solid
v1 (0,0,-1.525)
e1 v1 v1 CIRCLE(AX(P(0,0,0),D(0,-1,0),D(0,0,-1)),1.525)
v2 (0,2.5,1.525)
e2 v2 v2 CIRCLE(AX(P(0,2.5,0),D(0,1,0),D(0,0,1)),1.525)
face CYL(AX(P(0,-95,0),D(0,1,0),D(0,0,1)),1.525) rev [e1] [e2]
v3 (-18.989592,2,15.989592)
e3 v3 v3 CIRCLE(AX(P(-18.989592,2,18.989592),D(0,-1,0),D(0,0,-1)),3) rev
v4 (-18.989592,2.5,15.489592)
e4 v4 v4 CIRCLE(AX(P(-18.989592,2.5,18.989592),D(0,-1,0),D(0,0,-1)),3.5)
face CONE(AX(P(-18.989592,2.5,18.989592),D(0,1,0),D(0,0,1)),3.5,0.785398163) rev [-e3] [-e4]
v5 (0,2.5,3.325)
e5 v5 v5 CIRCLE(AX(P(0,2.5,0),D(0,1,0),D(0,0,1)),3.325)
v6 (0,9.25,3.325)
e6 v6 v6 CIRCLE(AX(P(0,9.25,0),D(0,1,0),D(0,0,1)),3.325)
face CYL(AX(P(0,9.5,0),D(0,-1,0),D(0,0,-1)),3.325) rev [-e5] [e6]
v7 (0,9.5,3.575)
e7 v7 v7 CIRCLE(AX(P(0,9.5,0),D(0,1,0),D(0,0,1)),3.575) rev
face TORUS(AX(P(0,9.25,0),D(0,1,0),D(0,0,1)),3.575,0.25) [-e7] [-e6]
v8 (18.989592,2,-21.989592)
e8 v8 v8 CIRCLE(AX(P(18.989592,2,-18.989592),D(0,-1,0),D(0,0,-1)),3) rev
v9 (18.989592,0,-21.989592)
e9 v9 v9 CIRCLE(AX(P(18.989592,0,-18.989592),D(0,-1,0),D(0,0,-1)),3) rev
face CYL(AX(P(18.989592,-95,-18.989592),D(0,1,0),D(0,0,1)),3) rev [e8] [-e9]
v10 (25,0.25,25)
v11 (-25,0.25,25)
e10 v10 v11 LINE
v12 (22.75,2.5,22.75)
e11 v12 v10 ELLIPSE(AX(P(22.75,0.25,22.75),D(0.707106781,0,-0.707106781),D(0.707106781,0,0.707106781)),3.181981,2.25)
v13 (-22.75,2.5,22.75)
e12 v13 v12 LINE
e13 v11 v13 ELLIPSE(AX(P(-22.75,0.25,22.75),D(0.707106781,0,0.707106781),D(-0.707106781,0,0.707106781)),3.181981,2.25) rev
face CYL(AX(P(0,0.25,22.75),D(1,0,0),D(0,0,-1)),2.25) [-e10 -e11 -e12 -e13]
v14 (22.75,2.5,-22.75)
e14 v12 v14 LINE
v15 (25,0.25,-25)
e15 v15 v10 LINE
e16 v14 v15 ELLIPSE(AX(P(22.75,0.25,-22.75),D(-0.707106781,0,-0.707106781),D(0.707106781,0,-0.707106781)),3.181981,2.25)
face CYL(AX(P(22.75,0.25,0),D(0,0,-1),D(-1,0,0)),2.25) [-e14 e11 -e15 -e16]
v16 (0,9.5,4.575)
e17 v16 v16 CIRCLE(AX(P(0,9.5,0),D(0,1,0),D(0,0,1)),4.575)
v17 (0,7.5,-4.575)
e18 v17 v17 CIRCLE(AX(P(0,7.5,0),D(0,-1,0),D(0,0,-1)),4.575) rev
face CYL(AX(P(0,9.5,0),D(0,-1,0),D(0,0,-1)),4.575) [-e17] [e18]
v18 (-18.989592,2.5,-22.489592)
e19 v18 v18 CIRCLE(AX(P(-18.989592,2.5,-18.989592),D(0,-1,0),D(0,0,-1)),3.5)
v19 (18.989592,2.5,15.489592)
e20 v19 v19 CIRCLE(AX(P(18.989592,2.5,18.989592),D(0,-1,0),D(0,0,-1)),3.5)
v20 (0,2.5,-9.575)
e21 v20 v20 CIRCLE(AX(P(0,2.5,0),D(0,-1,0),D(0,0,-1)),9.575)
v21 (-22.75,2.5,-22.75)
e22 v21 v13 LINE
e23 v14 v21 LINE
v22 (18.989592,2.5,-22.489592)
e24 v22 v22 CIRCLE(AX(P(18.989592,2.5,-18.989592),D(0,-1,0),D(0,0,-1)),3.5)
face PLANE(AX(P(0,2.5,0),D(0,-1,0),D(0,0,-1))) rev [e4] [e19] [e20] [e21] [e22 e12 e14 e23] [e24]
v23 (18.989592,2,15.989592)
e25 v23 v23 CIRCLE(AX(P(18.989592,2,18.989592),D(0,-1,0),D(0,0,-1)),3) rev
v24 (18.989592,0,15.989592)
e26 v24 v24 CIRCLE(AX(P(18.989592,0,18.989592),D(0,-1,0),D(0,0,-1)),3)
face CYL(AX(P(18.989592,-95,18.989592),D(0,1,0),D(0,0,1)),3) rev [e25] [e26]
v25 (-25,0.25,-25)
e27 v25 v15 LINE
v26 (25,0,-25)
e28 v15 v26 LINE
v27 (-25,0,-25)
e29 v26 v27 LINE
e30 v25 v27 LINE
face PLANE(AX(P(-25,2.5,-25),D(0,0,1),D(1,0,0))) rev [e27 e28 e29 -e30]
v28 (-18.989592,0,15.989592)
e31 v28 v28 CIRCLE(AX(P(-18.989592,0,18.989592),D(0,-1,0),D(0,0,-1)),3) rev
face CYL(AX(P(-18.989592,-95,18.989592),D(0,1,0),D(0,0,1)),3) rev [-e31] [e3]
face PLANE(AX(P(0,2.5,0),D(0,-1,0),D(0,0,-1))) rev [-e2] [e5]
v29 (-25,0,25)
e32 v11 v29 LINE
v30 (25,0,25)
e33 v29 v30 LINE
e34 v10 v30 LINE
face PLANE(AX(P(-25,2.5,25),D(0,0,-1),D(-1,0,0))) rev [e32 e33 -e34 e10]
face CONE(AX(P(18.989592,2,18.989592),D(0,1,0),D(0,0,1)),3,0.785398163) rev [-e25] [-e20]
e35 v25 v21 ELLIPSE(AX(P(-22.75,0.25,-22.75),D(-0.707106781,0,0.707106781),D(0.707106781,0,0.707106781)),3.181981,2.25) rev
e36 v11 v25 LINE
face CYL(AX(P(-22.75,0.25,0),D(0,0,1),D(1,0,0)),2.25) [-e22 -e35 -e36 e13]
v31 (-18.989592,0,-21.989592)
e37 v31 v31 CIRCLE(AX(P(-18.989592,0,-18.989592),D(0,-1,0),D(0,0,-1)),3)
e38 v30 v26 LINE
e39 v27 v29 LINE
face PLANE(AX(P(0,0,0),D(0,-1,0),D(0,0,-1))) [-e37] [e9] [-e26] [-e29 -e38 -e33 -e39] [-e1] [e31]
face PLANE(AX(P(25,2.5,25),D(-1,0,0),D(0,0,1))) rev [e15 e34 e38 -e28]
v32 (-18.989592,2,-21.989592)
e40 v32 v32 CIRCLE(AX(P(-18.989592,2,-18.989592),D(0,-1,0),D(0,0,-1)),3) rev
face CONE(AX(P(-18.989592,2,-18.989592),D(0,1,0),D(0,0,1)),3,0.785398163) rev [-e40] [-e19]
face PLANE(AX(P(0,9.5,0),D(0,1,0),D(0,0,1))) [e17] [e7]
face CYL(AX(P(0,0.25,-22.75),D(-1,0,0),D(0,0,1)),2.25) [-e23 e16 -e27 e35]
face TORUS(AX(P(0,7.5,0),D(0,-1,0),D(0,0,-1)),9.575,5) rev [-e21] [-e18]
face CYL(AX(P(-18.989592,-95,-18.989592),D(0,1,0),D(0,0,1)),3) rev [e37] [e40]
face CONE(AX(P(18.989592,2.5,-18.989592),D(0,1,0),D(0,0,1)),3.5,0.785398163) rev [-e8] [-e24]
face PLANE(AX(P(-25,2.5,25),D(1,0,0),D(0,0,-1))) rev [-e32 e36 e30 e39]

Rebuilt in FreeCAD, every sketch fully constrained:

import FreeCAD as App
import Part
import Sketcher


def edges_at(feature, points):
    """Names of the edges that pass closest to the given points."""
    edges = feature.Shape.Edges
    near = lambda p: min(range(len(edges)), key=lambda i: edges[i].distToShape(Part.Vertex(*p))[0])
    return sorted({f"Edge{near(p) + 1}" for p in points})

doc = App.newDocument("Part")
params = doc.addObject("Spreadsheet::Sheet", "Params")
for row, (alias, value) in enumerate([
    ("sketch1_width", "50 mm"),
    ("pad1_length", "2.5 mm"),
    ("sketch2_diameter", "3.05 mm"),
    ("pocket1_length", "97.5 mm"),
    ("sketch3_diameter", "6 mm"),
    ("pocket2_length", "97.5 mm"),
    ("sketch4_diameter", "9.15 mm"),
    ("sketch4_diameter2", "6.65 mm"),
    ("pad2_length", "7 mm"),
    ("fillet_radius", "5 mm"),
    ("fillet2_radius", "2.25 mm"),
    ("chamfer_size", "0.5 mm"),
    ("fillet3_radius", "0.25 mm"),
], start=1):
    params.set(f"A{row}", alias)
    params.set(f"B{row}", "=" + value)
    params.setAlias(f"B{row}", alias)

body = doc.addObject("PartDesign::Body", "Body")

# Sketch on XZ plane
sketch1 = body.newObject("Sketcher::SketchObject", "Sketch")
sketch1.AttachmentSupport = (doc.getObject("XZ_Plane"), [""])
sketch1.MapMode = "FlatFace"
sketch1.addGeometry([
    Part.LineSegment(App.Vector(-25, -25, 0), App.Vector(-25, 25, 0)),
    Part.LineSegment(App.Vector(-25, 25, 0), App.Vector(25, 25, 0)),
    Part.LineSegment(App.Vector(25, 25, 0), App.Vector(25, -25, 0)),
    Part.LineSegment(App.Vector(25, -25, 0), App.Vector(-25, -25, 0)),
], False)
sketch1.addConstraint([
    Sketcher.Constraint("Coincident", 0, 2, 1, 1),
    Sketcher.Constraint("Coincident", 1, 2, 2, 1),
    Sketcher.Constraint("Coincident", 2, 2, 3, 1),
    Sketcher.Constraint("Coincident", 3, 2, 0, 1),
    Sketcher.Constraint("Vertical", 0),
    Sketcher.Constraint("Horizontal", 1),
    Sketcher.Constraint("Vertical", 2),
    Sketcher.Constraint("Horizontal", 3),
    Sketcher.Constraint("Symmetric", 0, 2, 2, 2, -1, 1),
    Sketcher.Constraint("Equal", 3, 0),
    Sketcher.Constraint("DistanceX", 1, 1, 1, 2, 50.0),
])
sketch1.setExpression("Constraints[10]", "Params.sketch1_width")
pad1 = body.newObject("PartDesign::Pad", "Pad")
pad1.Profile = sketch1
pad1.setExpression("Length", "Params.pad1_length")
pad1.Reversed = True

# Sketch on XZ plane
sketch2 = body.newObject("Sketcher::SketchObject", "Sketch001")
sketch2.AttachmentSupport = (doc.getObject("XZ_Plane"), [""])
sketch2.MapMode = "FlatFace"
sketch2.AttachmentOffset = App.Placement(App.Vector(0, 0, -2.5), App.Rotation())
sketch2.addGeometry(Part.Circle(App.Vector(0, 0, 0), App.Vector(0, 0, 1), 1.5), False)
sketch2.addConstraint([
    Sketcher.Constraint("Coincident", 0, 3, -1, 1),
    Sketcher.Constraint("Diameter", 0, 3.05),
])
sketch2.setExpression("Constraints[1]", "Params.sketch2_diameter")
pocket1 = body.newObject("PartDesign::Pocket", "Pocket")
pocket1.Profile = sketch2
pocket1.setExpression("Length", "Params.pocket1_length")
pocket1.Reversed = True

# Sketch on XZ plane
sketch3 = body.newObject("Sketcher::SketchObject", "Sketch002")
sketch3.AttachmentSupport = (doc.getObject("XZ_Plane"), [""])
sketch3.MapMode = "FlatFace"
sketch3.AttachmentOffset = App.Placement(App.Vector(0, 0, -2.5), App.Rotation())
sketch3.addGeometry([
    Part.Circle(App.Vector(-19, -19, 0), App.Vector(0, 0, 1), 3),
    Part.Circle(App.Vector(19, -19, 0), App.Vector(0, 0, 1), 3),
    Part.Circle(App.Vector(19, 19, 0), App.Vector(0, 0, 1), 3),
    Part.Circle(App.Vector(-19, 19, 0), App.Vector(0, 0, 1), 3),
], False)
sketch3.addConstraint([
    Sketcher.Constraint("Equal", 0, 1),
    Sketcher.Constraint("Equal", 1, 2),
    Sketcher.Constraint("Equal", 2, 3),
    Sketcher.Constraint("Symmetric", 0, 3, 2, 3, -1, 1),
    Sketcher.Constraint("Symmetric", 1, 3, 3, 3, -1, 1),
    Sketcher.Constraint("Symmetric", 0, 3, 1, 3, -2),
    Sketcher.Constraint("Diameter", 0, 6.0),
    Sketcher.Constraint("DistanceX", 0, 3, -1, 1, 18.989592),
    Sketcher.Constraint("DistanceY", 0, 3, -1, 1, 18.989592),
])
sketch3.setExpression("Constraints[6]", "Params.sketch3_diameter")
pocket2 = body.newObject("PartDesign::Pocket", "Pocket001")
pocket2.Profile = sketch3
pocket2.setExpression("Length", "Params.pocket2_length")
pocket2.Reversed = True

# Sketch on XZ plane
sketch4 = body.newObject("Sketcher::SketchObject", "Sketch003")
sketch4.AttachmentSupport = (doc.getObject("XZ_Plane"), [""])
sketch4.MapMode = "FlatFace"
sketch4.AttachmentOffset = App.Placement(App.Vector(0, 0, -2.5), App.Rotation())
sketch4.addGeometry([
    Part.Circle(App.Vector(0, 0, 0), App.Vector(0, 0, 1), 4.6),
    Part.Circle(App.Vector(0, 0, 0), App.Vector(0, 0, 1), 3.3),
], False)
sketch4.addConstraint([
    Sketcher.Constraint("Coincident", 0, 3, -1, 1),
    Sketcher.Constraint("Coincident", 1, 3, -1, 1),
    Sketcher.Constraint("Diameter", 0, 9.15),
    Sketcher.Constraint("Diameter", 1, 6.65),
])
sketch4.setExpression("Constraints[2]", "Params.sketch4_diameter")
sketch4.setExpression("Constraints[3]", "Params.sketch4_diameter2")
pad2 = body.newObject("PartDesign::Pad", "Pad001")
pad2.Profile = sketch4
pad2.setExpression("Length", "Params.pad2_length")
pad2.Reversed = True
doc.recompute()

fillet = body.newObject("PartDesign::Fillet", "Fillet")
fillet.Base = (pad2, edges_at(pad2, [(0, 2.5, 4.575)]))
fillet.setExpression("Radius", "Params.fillet_radius")
doc.recompute()

fillet2 = body.newObject("PartDesign::Fillet", "Fillet001")
fillet2.Base = (fillet, edges_at(fillet, [
    (-25, 2.5, 0),
    (0, 2.5, 25),
    (25, 2.5, 0),
    (0, 2.5, -25),
]))
fillet2.setExpression("Radius", "Params.fillet2_radius")
doc.recompute()

chamfer = body.newObject("PartDesign::Chamfer", "Chamfer")
chamfer.Base = (fillet2, edges_at(fillet2, [
    (-18.99, 2.5, 15.99),
    (18.99, 2.5, 15.99),
    (18.99, 2.5, -21.99),
    (-18.99, 2.5, -21.99),
]))
chamfer.setExpression("Size", "Params.chamfer_size")
doc.recompute()

fillet3 = body.newObject("PartDesign::Fillet", "Fillet002")
fillet3.Base = (chamfer, edges_at(chamfer, [(0, 9.5, -3.325)]))
fillet3.setExpression("Radius", "Params.fillet3_radius")

doc.recompute()
